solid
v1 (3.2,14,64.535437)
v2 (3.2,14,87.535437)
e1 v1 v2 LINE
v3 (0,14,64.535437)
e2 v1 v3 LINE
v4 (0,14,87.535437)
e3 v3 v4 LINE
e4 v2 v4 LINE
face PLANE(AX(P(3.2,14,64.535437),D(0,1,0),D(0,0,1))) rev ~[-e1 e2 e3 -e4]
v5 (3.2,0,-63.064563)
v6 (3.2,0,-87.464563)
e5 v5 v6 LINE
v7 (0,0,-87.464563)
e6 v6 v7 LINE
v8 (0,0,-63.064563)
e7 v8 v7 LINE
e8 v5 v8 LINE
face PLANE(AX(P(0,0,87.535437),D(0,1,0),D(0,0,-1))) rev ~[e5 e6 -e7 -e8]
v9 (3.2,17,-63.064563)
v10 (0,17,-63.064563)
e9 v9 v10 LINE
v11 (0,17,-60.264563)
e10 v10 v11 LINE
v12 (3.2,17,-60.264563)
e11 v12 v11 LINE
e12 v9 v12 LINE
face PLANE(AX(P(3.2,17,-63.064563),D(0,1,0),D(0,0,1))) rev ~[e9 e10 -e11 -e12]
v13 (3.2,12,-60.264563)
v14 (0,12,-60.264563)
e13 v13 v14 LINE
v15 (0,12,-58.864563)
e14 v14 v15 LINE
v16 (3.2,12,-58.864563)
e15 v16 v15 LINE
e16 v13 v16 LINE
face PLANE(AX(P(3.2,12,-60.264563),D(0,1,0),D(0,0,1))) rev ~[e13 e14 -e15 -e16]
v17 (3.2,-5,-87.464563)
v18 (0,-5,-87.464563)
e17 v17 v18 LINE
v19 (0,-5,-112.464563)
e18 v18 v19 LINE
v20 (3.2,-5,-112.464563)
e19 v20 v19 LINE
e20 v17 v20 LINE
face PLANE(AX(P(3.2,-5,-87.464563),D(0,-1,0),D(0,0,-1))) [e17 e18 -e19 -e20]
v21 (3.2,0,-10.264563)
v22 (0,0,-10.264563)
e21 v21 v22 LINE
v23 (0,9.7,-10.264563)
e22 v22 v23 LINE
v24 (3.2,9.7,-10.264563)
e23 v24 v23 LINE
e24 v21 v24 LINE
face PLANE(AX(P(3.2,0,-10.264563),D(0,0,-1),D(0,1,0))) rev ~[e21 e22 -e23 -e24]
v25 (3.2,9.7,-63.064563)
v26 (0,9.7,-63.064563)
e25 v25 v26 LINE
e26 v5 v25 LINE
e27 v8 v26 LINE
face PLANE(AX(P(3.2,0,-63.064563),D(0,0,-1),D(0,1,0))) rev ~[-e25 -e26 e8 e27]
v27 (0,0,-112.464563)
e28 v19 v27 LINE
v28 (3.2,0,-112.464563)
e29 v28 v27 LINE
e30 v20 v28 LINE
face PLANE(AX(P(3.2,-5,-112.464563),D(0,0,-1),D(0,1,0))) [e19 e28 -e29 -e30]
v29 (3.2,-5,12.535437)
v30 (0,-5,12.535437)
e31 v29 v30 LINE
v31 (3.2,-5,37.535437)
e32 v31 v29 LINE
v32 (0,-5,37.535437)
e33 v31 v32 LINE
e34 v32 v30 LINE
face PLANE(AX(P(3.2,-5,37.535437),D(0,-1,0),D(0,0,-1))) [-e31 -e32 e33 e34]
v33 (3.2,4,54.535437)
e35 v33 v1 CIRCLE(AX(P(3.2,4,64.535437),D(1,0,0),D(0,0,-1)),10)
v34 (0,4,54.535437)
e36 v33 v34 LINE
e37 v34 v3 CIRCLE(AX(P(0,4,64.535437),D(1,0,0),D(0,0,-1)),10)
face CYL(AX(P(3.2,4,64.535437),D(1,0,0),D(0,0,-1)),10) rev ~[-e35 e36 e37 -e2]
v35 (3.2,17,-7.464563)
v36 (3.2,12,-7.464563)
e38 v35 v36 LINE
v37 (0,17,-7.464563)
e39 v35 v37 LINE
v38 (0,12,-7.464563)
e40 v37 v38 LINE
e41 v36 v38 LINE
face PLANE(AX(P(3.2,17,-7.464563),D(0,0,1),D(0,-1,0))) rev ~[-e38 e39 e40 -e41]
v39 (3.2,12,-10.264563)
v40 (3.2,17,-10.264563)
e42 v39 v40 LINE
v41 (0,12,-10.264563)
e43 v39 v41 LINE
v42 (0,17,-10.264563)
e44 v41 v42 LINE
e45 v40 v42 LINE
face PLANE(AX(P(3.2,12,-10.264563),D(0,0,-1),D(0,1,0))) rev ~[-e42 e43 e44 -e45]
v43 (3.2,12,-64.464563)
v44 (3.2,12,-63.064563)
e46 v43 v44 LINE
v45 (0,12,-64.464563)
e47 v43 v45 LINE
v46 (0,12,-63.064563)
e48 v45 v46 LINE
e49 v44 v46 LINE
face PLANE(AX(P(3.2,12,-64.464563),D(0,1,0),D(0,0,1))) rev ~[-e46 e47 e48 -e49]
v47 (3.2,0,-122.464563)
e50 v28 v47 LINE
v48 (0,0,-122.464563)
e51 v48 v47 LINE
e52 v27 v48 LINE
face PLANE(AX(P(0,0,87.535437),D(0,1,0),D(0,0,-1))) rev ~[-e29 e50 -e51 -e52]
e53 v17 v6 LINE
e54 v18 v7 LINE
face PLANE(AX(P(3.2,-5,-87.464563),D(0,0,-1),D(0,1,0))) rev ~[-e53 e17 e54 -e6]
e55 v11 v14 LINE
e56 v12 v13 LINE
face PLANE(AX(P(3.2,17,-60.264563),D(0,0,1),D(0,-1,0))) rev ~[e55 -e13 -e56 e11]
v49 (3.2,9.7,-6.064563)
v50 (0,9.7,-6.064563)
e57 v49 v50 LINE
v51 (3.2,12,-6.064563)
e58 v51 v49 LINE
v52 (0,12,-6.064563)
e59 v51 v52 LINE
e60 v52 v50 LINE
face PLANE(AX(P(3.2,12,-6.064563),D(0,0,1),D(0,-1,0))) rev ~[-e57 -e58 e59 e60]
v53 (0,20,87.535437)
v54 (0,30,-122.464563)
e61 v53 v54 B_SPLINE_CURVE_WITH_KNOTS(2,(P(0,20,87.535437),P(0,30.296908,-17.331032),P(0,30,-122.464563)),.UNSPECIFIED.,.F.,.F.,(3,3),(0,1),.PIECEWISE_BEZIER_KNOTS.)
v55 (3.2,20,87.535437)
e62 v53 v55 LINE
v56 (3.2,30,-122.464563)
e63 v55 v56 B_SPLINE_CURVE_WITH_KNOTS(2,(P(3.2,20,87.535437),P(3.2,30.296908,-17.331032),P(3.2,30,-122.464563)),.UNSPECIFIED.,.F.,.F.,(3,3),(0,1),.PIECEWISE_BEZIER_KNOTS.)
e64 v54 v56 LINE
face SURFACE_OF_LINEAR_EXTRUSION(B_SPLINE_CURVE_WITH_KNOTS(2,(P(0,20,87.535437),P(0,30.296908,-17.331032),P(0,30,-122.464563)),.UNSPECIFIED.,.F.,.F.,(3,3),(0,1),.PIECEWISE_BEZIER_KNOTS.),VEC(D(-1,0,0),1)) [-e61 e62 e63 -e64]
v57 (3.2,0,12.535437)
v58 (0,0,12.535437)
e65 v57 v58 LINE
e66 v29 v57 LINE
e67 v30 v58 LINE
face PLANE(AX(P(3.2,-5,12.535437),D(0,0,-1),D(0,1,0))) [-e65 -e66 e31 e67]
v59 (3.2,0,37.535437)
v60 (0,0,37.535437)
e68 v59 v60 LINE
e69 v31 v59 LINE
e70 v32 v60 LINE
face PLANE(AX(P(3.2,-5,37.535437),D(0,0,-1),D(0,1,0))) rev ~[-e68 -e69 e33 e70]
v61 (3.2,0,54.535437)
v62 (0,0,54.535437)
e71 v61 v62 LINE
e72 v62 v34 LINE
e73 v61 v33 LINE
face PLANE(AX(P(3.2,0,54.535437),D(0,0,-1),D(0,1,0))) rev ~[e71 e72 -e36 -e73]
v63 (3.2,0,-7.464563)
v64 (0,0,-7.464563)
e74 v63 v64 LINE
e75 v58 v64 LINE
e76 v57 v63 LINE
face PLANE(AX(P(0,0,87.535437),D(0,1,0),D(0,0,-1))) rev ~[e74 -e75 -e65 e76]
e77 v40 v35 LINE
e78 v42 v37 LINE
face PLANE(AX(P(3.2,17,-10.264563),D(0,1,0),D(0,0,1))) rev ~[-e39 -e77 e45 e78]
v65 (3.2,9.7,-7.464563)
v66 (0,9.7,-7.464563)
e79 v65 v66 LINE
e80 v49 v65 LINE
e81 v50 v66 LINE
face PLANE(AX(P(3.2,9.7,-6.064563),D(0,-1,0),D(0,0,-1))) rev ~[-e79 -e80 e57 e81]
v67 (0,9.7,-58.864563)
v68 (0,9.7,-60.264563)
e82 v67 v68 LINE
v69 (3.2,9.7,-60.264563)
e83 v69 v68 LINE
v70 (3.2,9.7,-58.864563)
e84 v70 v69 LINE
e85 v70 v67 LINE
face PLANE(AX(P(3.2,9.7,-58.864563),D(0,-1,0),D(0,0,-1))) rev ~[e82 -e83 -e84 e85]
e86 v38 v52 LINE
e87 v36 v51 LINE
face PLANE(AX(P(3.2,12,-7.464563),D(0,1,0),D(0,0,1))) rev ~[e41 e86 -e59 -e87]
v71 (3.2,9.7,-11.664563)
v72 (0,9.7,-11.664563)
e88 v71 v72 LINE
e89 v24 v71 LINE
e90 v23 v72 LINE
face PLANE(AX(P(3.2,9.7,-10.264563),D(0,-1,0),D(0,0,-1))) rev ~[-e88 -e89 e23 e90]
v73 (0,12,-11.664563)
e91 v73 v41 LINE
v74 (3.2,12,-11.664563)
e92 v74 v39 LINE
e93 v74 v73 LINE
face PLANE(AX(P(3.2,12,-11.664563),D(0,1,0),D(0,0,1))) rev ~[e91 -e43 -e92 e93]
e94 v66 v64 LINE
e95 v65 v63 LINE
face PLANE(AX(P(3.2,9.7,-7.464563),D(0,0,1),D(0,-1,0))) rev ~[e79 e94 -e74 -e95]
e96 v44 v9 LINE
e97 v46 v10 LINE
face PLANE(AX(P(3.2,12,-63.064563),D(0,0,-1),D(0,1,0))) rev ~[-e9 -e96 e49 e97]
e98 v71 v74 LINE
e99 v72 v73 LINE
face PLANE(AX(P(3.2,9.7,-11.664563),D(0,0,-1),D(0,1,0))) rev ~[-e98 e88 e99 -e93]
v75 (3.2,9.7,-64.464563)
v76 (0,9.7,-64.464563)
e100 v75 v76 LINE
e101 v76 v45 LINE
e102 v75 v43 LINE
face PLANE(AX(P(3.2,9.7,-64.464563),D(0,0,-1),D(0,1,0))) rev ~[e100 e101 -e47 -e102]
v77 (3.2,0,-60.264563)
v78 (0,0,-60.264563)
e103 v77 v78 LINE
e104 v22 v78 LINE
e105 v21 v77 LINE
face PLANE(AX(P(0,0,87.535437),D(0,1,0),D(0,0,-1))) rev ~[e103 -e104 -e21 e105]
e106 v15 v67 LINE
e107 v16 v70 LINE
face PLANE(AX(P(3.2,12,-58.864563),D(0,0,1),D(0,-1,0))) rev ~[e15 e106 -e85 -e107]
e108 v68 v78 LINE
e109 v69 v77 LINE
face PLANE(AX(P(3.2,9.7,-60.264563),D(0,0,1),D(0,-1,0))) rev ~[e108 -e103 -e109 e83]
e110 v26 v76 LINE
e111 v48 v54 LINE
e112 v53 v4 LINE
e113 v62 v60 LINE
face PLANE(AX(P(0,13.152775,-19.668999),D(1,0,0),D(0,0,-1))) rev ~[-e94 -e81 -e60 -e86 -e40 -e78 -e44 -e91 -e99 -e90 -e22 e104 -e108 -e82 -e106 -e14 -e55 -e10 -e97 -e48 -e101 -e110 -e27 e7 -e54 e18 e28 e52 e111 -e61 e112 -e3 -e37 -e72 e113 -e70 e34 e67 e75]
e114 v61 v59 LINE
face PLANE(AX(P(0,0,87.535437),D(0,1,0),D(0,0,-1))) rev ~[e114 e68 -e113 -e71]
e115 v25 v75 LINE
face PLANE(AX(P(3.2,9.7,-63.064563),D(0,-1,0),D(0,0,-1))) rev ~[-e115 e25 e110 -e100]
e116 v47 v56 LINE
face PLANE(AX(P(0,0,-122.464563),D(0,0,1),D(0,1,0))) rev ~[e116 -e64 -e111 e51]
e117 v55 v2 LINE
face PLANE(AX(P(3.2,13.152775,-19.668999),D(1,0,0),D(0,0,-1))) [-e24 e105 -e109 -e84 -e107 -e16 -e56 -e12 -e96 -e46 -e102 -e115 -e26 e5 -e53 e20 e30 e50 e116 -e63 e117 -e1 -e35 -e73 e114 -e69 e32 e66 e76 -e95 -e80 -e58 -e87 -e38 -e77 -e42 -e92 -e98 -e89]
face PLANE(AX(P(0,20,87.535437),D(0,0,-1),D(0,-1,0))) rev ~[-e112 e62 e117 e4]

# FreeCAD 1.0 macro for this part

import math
import FreeCAD as App
import Part
import Sketcher
from FreeCAD import Vector
Q = App.Units.Quantity

doc = App.newDocument("Part")
body = doc.addObject("PartDesign::Body", "Body")

# Sketch on YZ plane
sketch1 = doc.addObject("Sketcher::SketchObject", "Sketch")
body.addObject(sketch1)
sketch1.AttachmentSupport = (doc.YZ_Plane, [""])
sketch1.MapMode = "FlatFace"
sketch1.addGeometry([
    Part.LineSegment(Vector(0, 87.535437, 0), Vector(0, -122.464563, 0)),
    Part.LineSegment(Vector(0, -122.464563, 0), Vector(30, -122.464563, 0)),
    Part.BSplineCurve([Vector(20, 87.535437, 0), Vector(30.296908, -17.331032, 0), Vector(30, -122.464563, 0)], [3, 3], [0, 1], False, 2, [1, 1, 1], False),
    Part.LineSegment(Vector(20, 87.535437, 0), Vector(0, 87.535437, 0)),
], False)
sketch1.addConstraint([
    Sketcher.Constraint("Block", 2),
    Sketcher.Constraint("Coincident", 0, 2, 1, 1),
    Sketcher.Constraint("Coincident", 1, 2, 2, 2),
    Sketcher.Constraint("Coincident", 2, 1, 3, 1),
    Sketcher.Constraint("Coincident", 3, 2, 0, 1),
    Sketcher.Constraint("Vertical", 0),
    Sketcher.Constraint("Horizontal", 1),
    Sketcher.Constraint("Horizontal", 3),
    Sketcher.Constraint("PointOnObject", 0, 2, -2),
])
pad1 = doc.addObject("PartDesign::Pad", "Pad")
body.addObject(pad1)
pad1.Profile = sketch1
pad1.Length = 3.2

# Sketch on YZ plane
sketch2 = doc.addObject("Sketcher::SketchObject", "Sketch001")
body.addObject(sketch2)
sketch2.AttachmentSupport = (doc.YZ_Plane, [""])
sketch2.MapMode = "FlatFace"
sketch2.AttachmentOffset = App.Placement(Vector(0, 0, 3.2), App.Rotation())
sketch2.addGeometry([
    Part.LineSegment(Vector(0, 87.5, 0), Vector(0, 54.5, 0)),  # 0
    Part.LineSegment(Vector(0, 54.5, 0), Vector(4, 54.5, 0)),  # 1
    Part.ArcOfCircle(Part.Circle(Vector(4, 64.5, 0), Vector(0, 0, 1), 10), math.radians(-90), math.radians(0)),  # 2
    Part.LineSegment(Vector(14, 64.5, 0), Vector(14, 87.5, 0)),  # 3
    Part.LineSegment(Vector(14, 87.5, 0), Vector(0, 87.5, 0)),  # 4
], False)
sketch2.addConstraint([
    Sketcher.Constraint("Coincident", 0, 2, 1, 1),
    Sketcher.Constraint("Tangent", 1, 2, 2, 1),
    Sketcher.Constraint("Tangent", 2, 2, 3, 1),
    Sketcher.Constraint("Coincident", 3, 2, 4, 1),
    Sketcher.Constraint("Coincident", 4, 2, 0, 1),
    Sketcher.Constraint("Vertical", 0),
    Sketcher.Constraint("Horizontal", 1),
    Sketcher.Constraint("Vertical", 3),
    Sketcher.Constraint("Horizontal", 4),
    Sketcher.Constraint("PointOnObject", 0, 2, -2),
    Sketcher.Constraint("Radius", 2, Q("10 mm")),
    Sketcher.Constraint("DistanceX", 1, 1, 1, 2, Q("4 mm")),
    Sketcher.Constraint("DistanceY", 0, 2, 0, 1, Q("33 mm")),
    Sketcher.Constraint("DistanceY", -1, 1, 2, 3, Q("64.535437 mm")),
])
pocket1 = doc.addObject("PartDesign::Pocket", "Pocket")
body.addObject(pocket1)
pocket1.Profile = sketch2
pocket1.Length = 3.2

# Sketch on YZ plane
sketch3 = doc.addObject("Sketcher::SketchObject", "Sketch002")
body.addObject(sketch3)
sketch3.AttachmentSupport = (doc.YZ_Plane, [""])
sketch3.MapMode = "FlatFace"
sketch3.AttachmentOffset = App.Placement(Vector(0, 0, 3.2), App.Rotation())
sketch3.addGeometry([
    Part.LineSegment(Vector(0, 38, 0), Vector(-5, 38, 0)),  # 0
    Part.LineSegment(Vector(-5, 38, 0), Vector(-5, 13, 0)),  # 1
    Part.LineSegment(Vector(-5, 13, 0), Vector(0, 13, 0)),  # 2
    Part.LineSegment(Vector(0, 13, 0), Vector(0, 38, 0)),  # 3
    Part.LineSegment(Vector(0, -87, 0), Vector(-5, -87, 0)),  # 4
    Part.LineSegment(Vector(-5, -87, 0), Vector(-5, -112, 0)),  # 5
    Part.LineSegment(Vector(-5, -112, 0), Vector(0, -112, 0)),  # 6
    Part.LineSegment(Vector(0, -112, 0), Vector(0, -87, 0)),  # 7
], False)
sketch3.addConstraint([
    Sketcher.Constraint("Coincident", 0, 2, 1, 1),
    Sketcher.Constraint("Coincident", 1, 2, 2, 1),
    Sketcher.Constraint("Coincident", 2, 2, 3, 1),
    Sketcher.Constraint("Coincident", 3, 2, 0, 1),
    Sketcher.Constraint("Coincident", 4, 2, 5, 1),
    Sketcher.Constraint("Coincident", 5, 2, 6, 1),
    Sketcher.Constraint("Coincident", 6, 2, 7, 1),
    Sketcher.Constraint("Coincident", 7, 2, 4, 1),
    Sketcher.Constraint("Horizontal", 0),
    Sketcher.Constraint("Vertical", 1),
    Sketcher.Constraint("Horizontal", 2),
    Sketcher.Constraint("Vertical", 3),
    Sketcher.Constraint("Horizontal", 4),
    Sketcher.Constraint("Vertical", 5),
    Sketcher.Constraint("Horizontal", 6),
    Sketcher.Constraint("Vertical", 7),
    Sketcher.Constraint("PointOnObject", 2, 2, -2),
    Sketcher.Constraint("PointOnObject", 6, 2, -2),
    Sketcher.Constraint("Vertical", 1, 2, 4, 2),
    Sketcher.Constraint("Equal", 3, 5),
    Sketcher.Constraint("DistanceX", 0, 2, 0, 1, Q("5 mm")),
    Sketcher.Constraint("DistanceY", 1, 2, 1, 1, Q("25 mm")),
    Sketcher.Constraint("DistanceY", 4, 2, 1, 2, Q("100 mm")),
    Sketcher.Constraint("DistanceY", -1, 1, 0, 2, Q("37.535437 mm")),
])
pad2 = doc.addObject("PartDesign::Pad", "Pad001")
body.addObject(pad2)
pad2.Profile = sketch3
pad2.Length = 3.2
pad2.Reversed = True

# Sketch on YZ plane
sketch4 = doc.addObject("Sketcher::SketchObject", "Sketch003")
body.addObject(sketch4)
sketch4.AttachmentSupport = (doc.YZ_Plane, [""])
sketch4.MapMode = "FlatFace"
sketch4.AttachmentOffset = App.Placement(Vector(0, 0, 3.2), App.Rotation())
sketch4.addGeometry([
    Part.LineSegment(Vector(0, -7.5, 0), Vector(0, -10.3, 0)),  # 0
    Part.LineSegment(Vector(0, -10.3, 0), Vector(9.7, -10.3, 0)),  # 1
    Part.LineSegment(Vector(9.7, -10.3, 0), Vector(9.7, -11.7, 0)),  # 2
    Part.LineSegment(Vector(9.7, -11.7, 0), Vector(12, -11.7, 0)),  # 3
    Part.LineSegment(Vector(12, -11.7, 0), Vector(12, -10.3, 0)),  # 4
    Part.LineSegment(Vector(12, -10.3, 0), Vector(17, -10.3, 0)),  # 5
    Part.LineSegment(Vector(17, -10.3, 0), Vector(17, -7.5, 0)),  # 6
    Part.LineSegment(Vector(17, -7.5, 0), Vector(12, -7.5, 0)),  # 7
    Part.LineSegment(Vector(12, -7.5, 0), Vector(12, -6.1, 0)),  # 8
    Part.LineSegment(Vector(12, -6.1, 0), Vector(9.7, -6.1, 0)),  # 9
    Part.LineSegment(Vector(9.7, -6.1, 0), Vector(9.7, -7.5, 0)),  # 10
    Part.LineSegment(Vector(9.7, -7.5, 0), Vector(0, -7.5, 0)),  # 11
    Part.LineSegment(Vector(0, -60.3, 0), Vector(0, -63.1, 0)),  # 12
    Part.LineSegment(Vector(0, -63.1, 0), Vector(9.7, -63.1, 0)),  # 13
    Part.LineSegment(Vector(9.7, -63.1, 0), Vector(9.7, -64.5, 0)),  # 14
    Part.LineSegment(Vector(9.7, -64.5, 0), Vector(12, -64.5, 0)),  # 15
    Part.LineSegment(Vector(12, -64.5, 0), Vector(12, -63.1, 0)),  # 16
    Part.LineSegment(Vector(12, -63.1, 0), Vector(17, -63.1, 0)),  # 17
    Part.LineSegment(Vector(17, -63.1, 0), Vector(17, -60.3, 0)),  # 18
    Part.LineSegment(Vector(17, -60.3, 0), Vector(12, -60.3, 0)),  # 19
    Part.LineSegment(Vector(12, -60.3, 0), Vector(12, -58.9, 0)),  # 20
    Part.LineSegment(Vector(12, -58.9, 0), Vector(9.7, -58.9, 0)),  # 21
    Part.LineSegment(Vector(9.7, -58.9, 0), Vector(9.7, -60.3, 0)),  # 22
    Part.LineSegment(Vector(9.7, -60.3, 0), Vector(0, -60.3, 0)),  # 23
], False)
sketch4.addConstraint([
    Sketcher.Constraint("Coincident", 0, 2, 1, 1),
    Sketcher.Constraint("Coincident", 1, 2, 2, 1),
    Sketcher.Constraint("Coincident", 2, 2, 3, 1),
    Sketcher.Constraint("Coincident", 3, 2, 4, 1),
    Sketcher.Constraint("Coincident", 4, 2, 5, 1),
    Sketcher.Constraint("Coincident", 5, 2, 6, 1),
    Sketcher.Constraint("Coincident", 6, 2, 7, 1),
    Sketcher.Constraint("Coincident", 7, 2, 8, 1),
    Sketcher.Constraint("Coincident", 8, 2, 9, 1),
    Sketcher.Constraint("Coincident", 9, 2, 10, 1),
    Sketcher.Constraint("Coincident", 10, 2, 11, 1),
    Sketcher.Constraint("Coincident", 11, 2, 0, 1),
    Sketcher.Constraint("Coincident", 12, 2, 13, 1),
    Sketcher.Constraint("Coincident", 13, 2, 14, 1),
    Sketcher.Constraint("Coincident", 14, 2, 15, 1),
    Sketcher.Constraint("Coincident", 15, 2, 16, 1),
    Sketcher.Constraint("Coincident", 16, 2, 17, 1),
    Sketcher.Constraint("Coincident", 17, 2, 18, 1),
    Sketcher.Constraint("Coincident", 18, 2, 19, 1),
    Sketcher.Constraint("Coincident", 19, 2, 20, 1),
    Sketcher.Constraint("Coincident", 20, 2, 21, 1),
    Sketcher.Constraint("Coincident", 21, 2, 22, 1),
    Sketcher.Constraint("Coincident", 22, 2, 23, 1),
    Sketcher.Constraint("Coincident", 23, 2, 12, 1),
    Sketcher.Constraint("Vertical", 0),
    Sketcher.Constraint("Horizontal", 1),
    Sketcher.Constraint("Vertical", 2),
    Sketcher.Constraint("Horizontal", 3),
    Sketcher.Constraint("Vertical", 4),
    Sketcher.Constraint("Horizontal", 5),
    Sketcher.Constraint("Vertical", 6),
    Sketcher.Constraint("Horizontal", 7),
    Sketcher.Constraint("Vertical", 8),
    Sketcher.Constraint("Horizontal", 9),
    Sketcher.Constraint("Vertical", 10),
    Sketcher.Constraint("Horizontal", 11),
    Sketcher.Constraint("Vertical", 12),
    Sketcher.Constraint("Horizontal", 13),
    Sketcher.Constraint("Vertical", 14),
    Sketcher.Constraint("Horizontal", 15),
    Sketcher.Constraint("Vertical", 16),
    Sketcher.Constraint("Horizontal", 17),
    Sketcher.Constraint("Vertical", 18),
    Sketcher.Constraint("Horizontal", 19),
    Sketcher.Constraint("Vertical", 20),
    Sketcher.Constraint("Horizontal", 21),
    Sketcher.Constraint("Vertical", 22),
    Sketcher.Constraint("Horizontal", 23),
    Sketcher.Constraint("PointOnObject", 0, 2, -2),
    Sketcher.Constraint("PointOnObject", 12, 2, -2),
    Sketcher.Constraint("Horizontal", 1, 2, 4, 2),
    Sketcher.Constraint("Horizontal", 7, 2, 10, 2),
    Sketcher.Constraint("Horizontal", 13, 2, 16, 2),
    Sketcher.Constraint("Horizontal", 19, 2, 22, 2),
    Sketcher.Constraint("Vertical", 4, 2, 7, 2),
    Sketcher.Constraint("Vertical", 2, 2, 9, 2),
    Sketcher.Constraint("Vertical", 10, 2, 13, 2),
    Sketcher.Constraint("Vertical", 8, 2, 15, 2),
    Sketcher.Constraint("Vertical", 6, 2, 17, 2),
    Sketcher.Constraint("Vertical", 16, 2, 19, 2),
    Sketcher.Constraint("Vertical", 14, 2, 21, 2),
    Sketcher.Constraint("Equal", 4, 8),
    Sketcher.Constraint("Equal", 6, 12),
    Sketcher.Constraint("Equal", 10, 14),
    Sketcher.Constraint("Equal", 16, 20),
    Sketcher.Constraint("DistanceX", 5, 1, 5, 2, Q("5 mm")),
    Sketcher.Constraint("DistanceX", 1, 1, 1, 2, Q("9.7 mm")),
    Sketcher.Constraint("DistanceX", 3, 1, 3, 2, Q("2.3 mm")),
    Sketcher.Constraint("DistanceY", 0, 2, 0, 1, Q("2.8 mm")),
    Sketcher.Constraint("DistanceY", 2, 2, 2, 1, Q("1.4 mm")),
    Sketcher.Constraint("DistanceY", 12, 2, 2, 2, Q("51.4 mm")),
    Sketcher.Constraint("DistanceY", 0, 2, -1, 1, Q("10.264563 mm")),
])
pocket2 = doc.addObject("PartDesign::Pocket", "Pocket001")
body.addObject(pocket2)
pocket2.Profile = sketch4
pocket2.Length = 3.2

doc.recompute()
